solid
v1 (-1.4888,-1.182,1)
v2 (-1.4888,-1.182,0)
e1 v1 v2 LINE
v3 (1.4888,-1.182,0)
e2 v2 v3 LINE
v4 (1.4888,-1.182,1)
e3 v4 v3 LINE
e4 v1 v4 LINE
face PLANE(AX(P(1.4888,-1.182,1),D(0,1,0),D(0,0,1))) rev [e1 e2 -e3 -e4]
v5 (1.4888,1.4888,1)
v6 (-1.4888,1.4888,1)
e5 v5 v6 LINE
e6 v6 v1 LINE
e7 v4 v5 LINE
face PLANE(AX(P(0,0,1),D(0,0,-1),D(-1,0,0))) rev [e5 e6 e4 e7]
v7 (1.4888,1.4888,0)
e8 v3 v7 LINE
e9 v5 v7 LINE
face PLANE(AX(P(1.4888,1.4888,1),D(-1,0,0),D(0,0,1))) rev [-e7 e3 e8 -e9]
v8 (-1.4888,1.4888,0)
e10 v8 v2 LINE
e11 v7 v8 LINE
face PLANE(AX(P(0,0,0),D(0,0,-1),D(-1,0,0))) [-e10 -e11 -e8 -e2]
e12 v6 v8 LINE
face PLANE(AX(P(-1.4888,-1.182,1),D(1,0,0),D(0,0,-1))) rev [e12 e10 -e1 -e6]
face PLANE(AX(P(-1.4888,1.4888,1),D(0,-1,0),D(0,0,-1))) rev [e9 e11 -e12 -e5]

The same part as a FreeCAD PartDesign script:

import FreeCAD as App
import Part
import Sketcher
from FreeCAD import Vector
Q = App.Units.Quantity


def add_polygon(sketch, points):
    """Adds a closed chain of lines whose ends are joined by coincident constraints."""
    first, n = sketch.GeometryCount, len(points)
    for a, b in zip(points, points[1:] + points[:1]):
        sketch.addGeometry(Part.LineSegment(App.Vector(*a, 0), App.Vector(*b, 0)), False)
    for i in range(n):
        sketch.addConstraint(Sketcher.Constraint("Coincident", first + i, 2, first + (i + 1) % n, 1))

doc = App.newDocument("Part")
body = doc.addObject("PartDesign::Body", "Body")

# Sketch on XY plane
sketch1 = body.newObject("Sketcher::SketchObject", "Sketch")
sketch1.AttachmentSupport = (doc.getObject("XY_Plane"), [""])
sketch1.MapMode = "FlatFace"
add_polygon(sketch1, [(-1.4888, 1.4888), (-1.4888, -1.182), (1.4888, -1.182), (1.4888, 1.4888)])  # lines 0-3
sketch1.addConstraint([
    Sketcher.Constraint("Vertical", 0),
    Sketcher.Constraint("Horizontal", 1),
    Sketcher.Constraint("Vertical", 2),
    Sketcher.Constraint("Horizontal", 3),
    Sketcher.Constraint("DistanceX", 1, 1, 1, 2, Q("2.9776 mm")),
    Sketcher.Constraint("DistanceY", 0, 2, 0, 1, Q("2.6708 mm")),
    Sketcher.Constraint("DistanceY", 0, 2, -1, 1, Q("1.182 mm")),
    Sketcher.Constraint("DistanceX", 0, 2, -1, 1, Q("1.4888 mm")),
])
pad1 = body.newObject("PartDesign::Pad", "Pad")
pad1.Profile = sketch1
pad1.Length = 1

doc.recompute()
